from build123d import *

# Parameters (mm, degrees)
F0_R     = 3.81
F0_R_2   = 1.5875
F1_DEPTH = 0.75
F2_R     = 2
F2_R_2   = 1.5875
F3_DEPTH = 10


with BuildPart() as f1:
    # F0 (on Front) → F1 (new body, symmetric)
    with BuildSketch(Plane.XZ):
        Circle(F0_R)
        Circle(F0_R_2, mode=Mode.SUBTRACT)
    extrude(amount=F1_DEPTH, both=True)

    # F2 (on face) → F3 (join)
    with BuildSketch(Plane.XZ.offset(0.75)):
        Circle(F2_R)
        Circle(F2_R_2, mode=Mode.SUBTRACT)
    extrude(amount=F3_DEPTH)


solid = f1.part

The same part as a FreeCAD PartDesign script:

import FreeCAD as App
import Part
import Sketcher
from FreeCAD import Vector

doc = App.newDocument("Part")
body = doc.addObject("PartDesign::Body", "Body")

sketch1 = doc.addObject("Sketcher::SketchObject", "Sketch")
body.addObject(sketch1)
sketch1.AttachmentSupport = (doc.XZ_Plane, [""])
sketch1.MapMode = "FlatFace"
sketch1.addGeometry(Part.Circle(Vector(0, 0, 0), Vector(0, 0, 1), 3.81), False)
sketch1.addGeometry(Part.Circle(Vector(0, 0, 0), Vector(0, 0, 1), 1.5875), False)
sketch1.addConstraint(Sketcher.Constraint("Coincident", 0, 3, -1, 1))
sketch1.addConstraint(Sketcher.Constraint("Coincident", 1, 3, -1, 1))
sketch1.addConstraint(Sketcher.Constraint("Diameter", 0, 7.62))
sketch1.addConstraint(Sketcher.Constraint("Diameter", 1, 3.175))
pad1 = doc.addObject("PartDesign::Pad", "Pad")
body.addObject(pad1)
pad1.Profile = sketch1
pad1.Length = 1.5
pad1.Midplane = True

sketch2 = doc.addObject("Sketcher::SketchObject", "Sketch001")
body.addObject(sketch2)
sketch2.AttachmentSupport = (doc.XZ_Plane, [""])
sketch2.MapMode = "FlatFace"
sketch2.AttachmentOffset = App.Placement(Vector(0, 0, 0.75), App.Rotation())
sketch2.addGeometry(Part.Circle(Vector(0, 0, 0), Vector(0, 0, 1), 2), False)
sketch2.addGeometry(Part.Circle(Vector(0, 0, 0), Vector(0, 0, 1), 1.5875), False)
sketch2.addConstraint(Sketcher.Constraint("Coincident", 0, 3, -1, 1))
sketch2.addConstraint(Sketcher.Constraint("Coincident", 1, 3, -1, 1))
sketch2.addConstraint(Sketcher.Constraint("Diameter", 0, 4.0))
sketch2.addConstraint(Sketcher.Constraint("Diameter", 1, 3.175))
pad2 = doc.addObject("PartDesign::Pad", "Pad001")
body.addObject(pad2)
pad2.Profile = sketch2
pad2.Length = 10

doc.recompute()
